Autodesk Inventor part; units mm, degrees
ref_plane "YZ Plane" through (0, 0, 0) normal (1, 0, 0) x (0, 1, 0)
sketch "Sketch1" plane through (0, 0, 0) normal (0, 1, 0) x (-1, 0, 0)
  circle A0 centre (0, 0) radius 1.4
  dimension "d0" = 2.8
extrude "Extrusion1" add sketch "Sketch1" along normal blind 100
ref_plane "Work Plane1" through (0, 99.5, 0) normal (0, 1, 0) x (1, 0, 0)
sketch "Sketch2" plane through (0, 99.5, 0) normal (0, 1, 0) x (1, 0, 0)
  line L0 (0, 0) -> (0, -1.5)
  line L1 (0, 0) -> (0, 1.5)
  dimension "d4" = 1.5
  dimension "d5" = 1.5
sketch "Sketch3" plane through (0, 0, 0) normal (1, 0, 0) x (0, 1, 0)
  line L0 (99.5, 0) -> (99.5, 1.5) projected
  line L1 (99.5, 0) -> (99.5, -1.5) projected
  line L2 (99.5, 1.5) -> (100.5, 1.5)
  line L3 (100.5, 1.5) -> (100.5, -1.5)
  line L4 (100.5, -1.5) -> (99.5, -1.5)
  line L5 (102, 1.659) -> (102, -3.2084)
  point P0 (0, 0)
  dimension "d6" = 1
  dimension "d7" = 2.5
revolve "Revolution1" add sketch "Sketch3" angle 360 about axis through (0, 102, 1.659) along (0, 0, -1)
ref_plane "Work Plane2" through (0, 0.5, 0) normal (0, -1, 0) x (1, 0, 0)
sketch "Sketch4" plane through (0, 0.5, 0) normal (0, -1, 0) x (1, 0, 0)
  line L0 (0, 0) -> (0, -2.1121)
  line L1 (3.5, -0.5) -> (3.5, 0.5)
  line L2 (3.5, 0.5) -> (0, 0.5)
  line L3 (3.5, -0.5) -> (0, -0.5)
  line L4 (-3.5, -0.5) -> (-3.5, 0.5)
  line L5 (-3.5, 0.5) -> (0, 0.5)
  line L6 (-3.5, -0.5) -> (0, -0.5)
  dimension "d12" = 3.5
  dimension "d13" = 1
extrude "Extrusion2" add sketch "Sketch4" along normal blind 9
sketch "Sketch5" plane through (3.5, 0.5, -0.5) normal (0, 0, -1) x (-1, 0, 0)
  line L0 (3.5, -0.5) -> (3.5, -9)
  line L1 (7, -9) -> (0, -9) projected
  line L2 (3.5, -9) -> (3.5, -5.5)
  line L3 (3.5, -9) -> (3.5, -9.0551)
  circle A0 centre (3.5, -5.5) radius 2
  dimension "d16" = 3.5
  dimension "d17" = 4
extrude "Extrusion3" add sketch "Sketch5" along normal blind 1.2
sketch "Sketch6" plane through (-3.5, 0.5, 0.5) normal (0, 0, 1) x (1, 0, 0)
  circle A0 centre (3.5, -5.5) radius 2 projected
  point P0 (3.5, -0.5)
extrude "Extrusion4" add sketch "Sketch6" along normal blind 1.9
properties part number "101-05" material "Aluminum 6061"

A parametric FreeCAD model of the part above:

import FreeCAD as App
import Part
import Sketcher

V = App.Vector

doc = App.newDocument("Part")
params = doc.addObject("Spreadsheet::Sheet", "Params")
for row, (alias, value) in enumerate([
    ("sketch1_diameter", "2.8 mm"),
    ("pad1_length", "100 mm"),
    ("sketch2_width", "1 mm"),
    ("sketch2_height", "3 mm"),
    ("revolution_angle", "360 deg"),
    ("sketch3_height", "1 mm"),
    ("pad2_length", "9 mm"),
    ("sketch4_diameter", "4 mm"),
    ("pad3_length", "1.2 mm"),
    ("sketch5_diameter", "4 mm"),
    ("pad4_length", "1.9 mm"),
], start=1):
    params.set(f"A{row}", alias)
    params.set(f"B{row}", "=" + value)
    params.setAlias(f"B{row}", alias)

body = doc.addObject("PartDesign::Body", "Body")

# Sketch on XZ plane
sketch1 = body.newObject("Sketcher::SketchObject", "Sketch")
sketch1.AttachmentSupport = (doc.getObject("XZ_Plane"), [""])
sketch1.MapMode = "FlatFace"
sketch1.addGeometry(Part.Circle(V(0, 0, 0), V(0, 0, 1), 1.4), False)
sketch1.addConstraint([
    Sketcher.Constraint("Coincident", 0, 3, -1, 1),
    Sketcher.Constraint("Diameter", 0, 2.8),
])
sketch1.setExpression("Constraints[1]", "Params.sketch1_diameter")
pad1 = body.newObject("PartDesign::Pad", "Pad")
pad1.Profile = sketch1
pad1.setExpression("Length", "Params.pad1_length")
pad1.Reversed = True

# Sketch on YZ plane
sketch2 = body.newObject("Sketcher::SketchObject", "Sketch001")
sketch2.AttachmentSupport = (doc.getObject("YZ_Plane"), [""])
sketch2.MapMode = "FlatFace"
sketch2.addGeometry([
    Part.LineSegment(V(99.5, 1.5, 0), V(99.5, -1.5, 0)),
    Part.LineSegment(V(99.5, -1.5, 0), V(100.5, -1.5, 0)),
    Part.LineSegment(V(100.5, -1.5, 0), V(100.5, 1.5, 0)),
    Part.LineSegment(V(100.5, 1.5, 0), V(99.5, 1.5, 0)),
], False)
sketch2.addGeometry(Part.LineSegment(V(102, 1.5, 0), V(102, -1.5, 0)), True)  # axis
sketch2.addConstraint([
    Sketcher.Constraint("Coincident", 0, 2, 1, 1),
    Sketcher.Constraint("Coincident", 1, 2, 2, 1),
    Sketcher.Constraint("Coincident", 2, 2, 3, 1),
    Sketcher.Constraint("Coincident", 3, 2, 0, 1),
    Sketcher.Constraint("Vertical", 0),
    Sketcher.Constraint("Horizontal", 1),
    Sketcher.Constraint("Vertical", 2),
    Sketcher.Constraint("Horizontal", 3),
    Sketcher.Constraint("Vertical", 4),
    Sketcher.Constraint("Horizontal", 3, 2, 4, 1),
    Sketcher.Constraint("Horizontal", 1, 2, 4, 2),
    Sketcher.Constraint("DistanceX", 1, 1, 1, 2, 1.0),
    Sketcher.Constraint("DistanceX", 3, 2, 4, 1, 2.5),
    Sketcher.Constraint("DistanceY", 0, 2, 0, 1, 3.0),
    Sketcher.Constraint("DistanceX", -1, 1, 4, 1, 102.0),
    Sketcher.Constraint("DistanceY", 0, 2, -1, 1, 1.5),
])
sketch2.setExpression("Constraints[11]", "Params.sketch2_width")
sketch2.setExpression("Constraints[13]", "Params.sketch2_height")
revolution = body.newObject("PartDesign::Revolution", "Revolution")
revolution.Profile = sketch2
revolution.ReferenceAxis = (sketch2, ["Axis0"])
revolution.setExpression("Angle", "Params.revolution_angle")

# Sketch on XZ plane
sketch3 = body.newObject("Sketcher::SketchObject", "Sketch002")
sketch3.AttachmentSupport = (doc.getObject("XZ_Plane"), [""])
sketch3.MapMode = "FlatFace"
sketch3.AttachmentOffset = App.Placement(V(0, 0, -0.5), App.Rotation())
sketch3.addGeometry([
    Part.LineSegment(V(-3.5, -0.5, 0), V(3.5, -0.5, 0)),
    Part.LineSegment(V(3.5, -0.5, 0), V(3.5, 0.5, 0)),
    Part.LineSegment(V(3.5, 0.5, 0), V(-3.5, 0.5, 0)),
    Part.LineSegment(V(-3.5, 0.5, 0), V(-3.5, -0.5, 0)),
], False)
sketch3.addConstraint([
    Sketcher.Constraint("Coincident", 0, 2, 1, 1),
    Sketcher.Constraint("Coincident", 1, 2, 2, 1),
    Sketcher.Constraint("Coincident", 2, 2, 3, 1),
    Sketcher.Constraint("Coincident", 3, 2, 0, 1),
    Sketcher.Constraint("Horizontal", 0),
    Sketcher.Constraint("Vertical", 1),
    Sketcher.Constraint("Horizontal", 2),
    Sketcher.Constraint("Vertical", 3),
    Sketcher.Constraint("Symmetric", 0, 2, 2, 2, -1, 1),
    Sketcher.Constraint("DistanceY", 1, 1, 1, 2, 1.0),
    Sketcher.Constraint("DistanceX", -1, 1, 0, 2, 3.5),
])
sketch3.setExpression("Constraints[9]", "Params.sketch3_height")
pad2 = body.newObject("PartDesign::Pad", "Pad001")
pad2.Profile = sketch3
pad2.setExpression("Length", "Params.pad2_length")

# Sketch on XY plane
sketch4 = body.newObject("Sketcher::SketchObject", "Sketch003")
sketch4.AttachmentSupport = (doc.getObject("XY_Plane"), [""])
sketch4.MapMode = "FlatFace"
sketch4.AttachmentOffset = App.Placement(V(0, 0, -0.5), App.Rotation())
sketch4.addGeometry(Part.Circle(V(0, -5, 0), V(0, 0, 1), 2), False)
sketch4.addConstraint([
    Sketcher.Constraint("PointOnObject", 0, 3, -2),
    Sketcher.Constraint("Diameter", 0, 4.0),
    Sketcher.Constraint("DistanceY", 0, 3, -1, 1, 5.0),
])
sketch4.setExpression("Constraints[1]", "Params.sketch4_diameter")
pad3 = body.newObject("PartDesign::Pad", "Pad002")
pad3.Profile = sketch4
pad3.setExpression("Length", "Params.pad3_length")
pad3.Reversed = True

# Sketch on XY plane
sketch5 = body.newObject("Sketcher::SketchObject", "Sketch004")
sketch5.AttachmentSupport = (doc.getObject("XY_Plane"), [""])
sketch5.MapMode = "FlatFace"
sketch5.AttachmentOffset = App.Placement(V(0, 0, 0.5), App.Rotation())
sketch5.addGeometry(Part.Circle(V(0, -5, 0), V(0, 0, 1), 2), False)
sketch5.addConstraint([
    Sketcher.Constraint("PointOnObject", 0, 3, -2),
    Sketcher.Constraint("Diameter", 0, 4.0),
    Sketcher.Constraint("DistanceY", 0, 3, -1, 1, 5.0),
])
sketch5.setExpression("Constraints[1]", "Params.sketch5_diameter")
pad4 = body.newObject("PartDesign::Pad", "Pad003")
pad4.Profile = sketch5
pad4.setExpression("Length", "Params.pad4_length")

doc.recompute()
